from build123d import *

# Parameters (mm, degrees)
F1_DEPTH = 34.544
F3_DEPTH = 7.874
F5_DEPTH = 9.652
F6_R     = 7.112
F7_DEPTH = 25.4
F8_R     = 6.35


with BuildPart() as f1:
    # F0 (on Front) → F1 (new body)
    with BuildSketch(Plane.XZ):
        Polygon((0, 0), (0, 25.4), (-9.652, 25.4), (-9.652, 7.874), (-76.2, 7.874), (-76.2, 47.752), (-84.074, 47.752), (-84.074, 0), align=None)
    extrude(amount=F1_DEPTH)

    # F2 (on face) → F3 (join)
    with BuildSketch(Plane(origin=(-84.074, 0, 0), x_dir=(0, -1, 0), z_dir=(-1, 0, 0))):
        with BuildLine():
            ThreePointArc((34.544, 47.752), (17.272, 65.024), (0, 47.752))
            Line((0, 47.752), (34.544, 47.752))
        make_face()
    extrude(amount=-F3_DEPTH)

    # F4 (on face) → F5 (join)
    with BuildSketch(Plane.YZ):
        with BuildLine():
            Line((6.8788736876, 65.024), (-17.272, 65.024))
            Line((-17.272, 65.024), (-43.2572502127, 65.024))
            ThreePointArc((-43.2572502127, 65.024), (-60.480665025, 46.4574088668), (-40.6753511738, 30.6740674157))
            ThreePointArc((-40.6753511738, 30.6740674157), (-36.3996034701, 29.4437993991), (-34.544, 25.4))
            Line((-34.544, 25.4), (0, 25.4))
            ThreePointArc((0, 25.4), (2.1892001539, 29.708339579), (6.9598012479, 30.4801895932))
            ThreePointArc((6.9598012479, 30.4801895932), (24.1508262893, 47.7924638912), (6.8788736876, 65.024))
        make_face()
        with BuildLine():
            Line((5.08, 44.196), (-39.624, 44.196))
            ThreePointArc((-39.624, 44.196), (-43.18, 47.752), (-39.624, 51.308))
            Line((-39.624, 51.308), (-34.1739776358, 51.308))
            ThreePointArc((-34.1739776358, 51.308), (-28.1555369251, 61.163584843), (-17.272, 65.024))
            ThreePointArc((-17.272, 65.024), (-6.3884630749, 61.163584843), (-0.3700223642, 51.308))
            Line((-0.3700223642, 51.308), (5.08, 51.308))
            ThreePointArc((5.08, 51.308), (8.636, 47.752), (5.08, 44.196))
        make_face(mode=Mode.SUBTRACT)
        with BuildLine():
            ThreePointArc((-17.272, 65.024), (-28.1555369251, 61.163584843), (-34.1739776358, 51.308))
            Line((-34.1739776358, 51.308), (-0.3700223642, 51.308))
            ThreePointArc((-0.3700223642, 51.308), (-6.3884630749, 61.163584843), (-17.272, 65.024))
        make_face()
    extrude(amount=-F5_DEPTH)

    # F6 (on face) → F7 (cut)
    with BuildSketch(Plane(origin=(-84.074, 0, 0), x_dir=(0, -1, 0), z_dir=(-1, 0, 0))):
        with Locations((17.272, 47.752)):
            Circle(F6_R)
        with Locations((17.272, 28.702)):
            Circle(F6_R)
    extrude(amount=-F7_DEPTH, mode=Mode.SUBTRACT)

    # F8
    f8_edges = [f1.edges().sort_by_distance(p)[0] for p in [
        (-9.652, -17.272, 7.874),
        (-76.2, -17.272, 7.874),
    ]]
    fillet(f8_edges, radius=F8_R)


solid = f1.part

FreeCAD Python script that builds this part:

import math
import FreeCAD as App
import Part
import Sketcher
from FreeCAD import Vector
Q = App.Units.Quantity


def edges_at(feature, points):
    """Names of the edges that pass closest to the given points."""
    edges = feature.Shape.Edges
    near = lambda p: min(range(len(edges)), key=lambda i: edges[i].distToShape(Part.Vertex(*p))[0])
    return sorted({f"Edge{near(p) + 1}" for p in points})


def add_polygon(sketch, points):
    """Adds a closed chain of lines whose ends are joined by coincident constraints."""
    first, n = sketch.GeometryCount, len(points)
    for a, b in zip(points, points[1:] + points[:1]):
        sketch.addGeometry(Part.LineSegment(App.Vector(*a, 0), App.Vector(*b, 0)), False)
    for i in range(n):
        sketch.addConstraint(Sketcher.Constraint("Coincident", first + i, 2, first + (i + 1) % n, 1))

doc = App.newDocument("Part")
body = doc.addObject("PartDesign::Body", "Body")

# Sketch on XZ plane
sketch1 = body.newObject("Sketcher::SketchObject", "Sketch")
sketch1.AttachmentSupport = (doc.getObject("XZ_Plane"), [""])
sketch1.MapMode = "FlatFace"
add_polygon(sketch1, [(0, 0), (0, 25.4), (-9.652, 25.4), (-9.652, 7.874), (-76.2, 7.874), (-76.2, 47.752), (-84.074, 47.752), (-84.074, 0)])  # lines 0-7
sketch1.addConstraint([
    Sketcher.Constraint("Vertical", 0),
    Sketcher.Constraint("Horizontal", 1),
    Sketcher.Constraint("Vertical", 2),
    Sketcher.Constraint("Horizontal", 3),
    Sketcher.Constraint("Vertical", 4),
    Sketcher.Constraint("Horizontal", 5),
    Sketcher.Constraint("Vertical", 6),
    Sketcher.Constraint("Horizontal", 7),
    Sketcher.Constraint("Coincident", 7, 2, -1, 1),
    Sketcher.Constraint("DistanceY", 0, 1, 0, 2, Q("1 in")),
    Sketcher.Constraint("DistanceX", 3, 2, -1, 1, Q("3 in")),
    Sketcher.Constraint("DistanceX", 1, 2, 1, 1, Q("0.38 in")),
    Sketcher.Constraint("DistanceX", 5, 2, 5, 1, Q("0.31 in")),
    Sketcher.Constraint("DistanceY", 2, 2, 2, 1, Q("0.69 in")),
    Sketcher.Constraint("DistanceY", 4, 1, 4, 2, Q("1.57 in")),
])
pad1 = body.newObject("PartDesign::Pad", "Pad")
pad1.Profile = sketch1
pad1.Length = Q("1.36 in")

# Sketch on YZ plane
sketch2 = body.newObject("Sketcher::SketchObject", "Sketch001")
sketch2.AttachmentSupport = (doc.getObject("YZ_Plane"), [""])
sketch2.MapMode = "FlatFace"
sketch2.AttachmentOffset = App.Placement(Vector(0, 0, -3.31 * 25.4), App.Rotation())
sketch2.addGeometry([
    Part.ArcOfCircle(Part.Circle(Vector(-17.272, 47.752, 0), Vector(0, 0, 1), 17.272), math.radians(0), math.radians(180)),
    Part.LineSegment(Vector(0, 47.752, 0), Vector(-34.544, 47.752, 0)),
], False)
sketch2.addConstraint([
    Sketcher.Constraint("Coincident", 0, 1, 1, 1),
    Sketcher.Constraint("Coincident", 1, 2, 0, 2),
    Sketcher.Constraint("Horizontal", 1),
    Sketcher.Constraint("PointOnObject", 0, 1, -2),
    Sketcher.Constraint("Radius", 0, Q("0.68 in")),
    Sketcher.Constraint("DistanceY", -1, 1, 0, 3, Q("1.88 in")),
    Sketcher.Constraint("DistanceY", -1, 1, 0, 1, Q("1.88 in")),
])
pad2 = body.newObject("PartDesign::Pad", "Pad001")
pad2.Profile = sketch2
pad2.Length = Q("0.31 in")

# Sketch on YZ plane
sketch3 = body.newObject("Sketcher::SketchObject", "Sketch002")
sketch3.AttachmentSupport = (doc.getObject("YZ_Plane"), [""])
sketch3.MapMode = "FlatFace"
sketch3.addGeometry([
    Part.ArcOfCircle(Part.Circle(Vector(5.334, 25.4, 0), Vector(0, 0, 1), 5.334), math.radians(72.25389), math.radians(180)),  # 0
    Part.ArcOfCircle(Part.Circle(Vector(6.878874, 47.752, 0), Vector(0, 0, 1), 17.272), math.radians(-89.731541), math.radians(90)),  # 1
    Part.LineSegment(Vector(6.878874, 65.024, 0), Vector(-43.25725, 65.024, 0)),  # 2
    Part.ArcOfCircle(Part.Circle(Vector(-43.25725, 47.752, 0), Vector(0, 0, 1), 17.272), math.radians(90), math.radians(278.597063)),  # 3
    Part.ArcOfCircle(Part.Circle(Vector(-39.878, 25.4, 0), Vector(0, 0, 1), 5.334), math.radians(0), math.radians(98.597063)),  # 4
    Part.LineSegment(Vector(-34.544, 25.4, 0), Vector(0, 25.4, 0)),  # 5
    Part.LineSegment(Vector(-39.624, 51.308, 0), Vector(5.08, 51.308, 0)),  # 6
    Part.ArcOfCircle(Part.Circle(Vector(5.08, 47.752, 0), Vector(0, 0, 1), 3.556), math.radians(-90), math.radians(90)),  # 7
    Part.LineSegment(Vector(5.08, 44.196, 0), Vector(-39.624, 44.196, 0)),  # 8
    Part.ArcOfCircle(Part.Circle(Vector(-39.624, 47.752, 0), Vector(0, 0, 1), 3.556), math.radians(90), math.radians(270)),  # 9
], False)
sketch3.addConstraint([
    Sketcher.Constraint("Coincident", 0, 1, 1, 1),
    Sketcher.Constraint("Tangent", 1, 2, 2, 1),
    Sketcher.Constraint("Tangent", 2, 2, 3, 1),
    Sketcher.Constraint("Tangent", 3, 2, 4, 2),
    Sketcher.Constraint("Coincident", 4, 1, 5, 1),
    Sketcher.Constraint("Coincident", 5, 2, 0, 2),
    Sketcher.Constraint("Tangent", 6, 2, 7, 2),
    Sketcher.Constraint("Tangent", 7, 1, 8, 1),
    Sketcher.Constraint("Tangent", 8, 2, 9, 2),
    Sketcher.Constraint("Tangent", 9, 1, 6, 1),
    Sketcher.Constraint("Horizontal", 2),
    Sketcher.Constraint("Horizontal", 5),
    Sketcher.Constraint("Horizontal", 6),
    Sketcher.Constraint("Horizontal", 8),
    Sketcher.Constraint("Equal", 1, 3),
    Sketcher.Constraint("Equal", 0, 4),
    Sketcher.Constraint("PointOnObject", 5, 2, -2),
    Sketcher.Constraint("Horizontal", 0, 3, 4, 3),
    Sketcher.Constraint("Horizontal", 3, 3, 7, 3),
    Sketcher.Constraint("Horizontal", 0, 3, 4, 1),
    Sketcher.Constraint("Radius", 0, Q("0.21 in")),
    Sketcher.Constraint("Radius", 1, Q("0.68 in")),
    Sketcher.Constraint("Radius", 7, Q("0.14 in")),
    Sketcher.Constraint("DistanceY", -1, 1, 0, 3, Q("1 in")),
    Sketcher.Constraint("DistanceX", 5, 1, 5, 2, Q("1.36 in")),
    Sketcher.Constraint("DistanceX", 6, 1, 6, 2, Q("1.76 in")),
    Sketcher.Constraint("DistanceX", -1, 1, 7, 3, Q("0.2 in")),
    Sketcher.Constraint("DistanceY", -1, 1, 1, 3, Q("1.88 in")),
    Sketcher.Constraint("DistanceX", 0, 3, 0, 1, Q("1.625801 mm")),
])
pad3 = body.newObject("PartDesign::Pad", "Pad002")
pad3.Profile = sketch3
pad3.Length = Q("0.38 in")
pad3.Reversed = True

# Sketch on YZ plane
sketch4 = body.newObject("Sketcher::SketchObject", "Sketch003")
sketch4.AttachmentSupport = (doc.getObject("YZ_Plane"), [""])
sketch4.MapMode = "FlatFace"
sketch4.AttachmentOffset = App.Placement(Vector(0, 0, -3.31 * 25.4), App.Rotation())
sketch4.addGeometry([
    Part.Circle(Vector(-17.272, 47.752, 0), Vector(0, 0, 1), 7.112),
    Part.Circle(Vector(-17.272, 28.702, 0), Vector(0, 0, 1), 7.112),
], False)
sketch4.addConstraint([
    Sketcher.Constraint("Equal", 0, 1),
    Sketcher.Constraint("Vertical", 0, 3, 1, 3),
    Sketcher.Constraint("Diameter", 0, Q("0.56 in")),
    Sketcher.Constraint("DistanceX", 0, 3, -1, 1, Q("0.68 in")),
    Sketcher.Constraint("DistanceY", -1, 1, 0, 3, Q("1.88 in")),
    Sketcher.Constraint("DistanceY", -1, 1, 1, 3, Q("1.13 in")),
])
pocket1 = body.newObject("PartDesign::Pocket", "Pocket")
pocket1.Profile = sketch4
pocket1.Length = Q("1 in")
pocket1.Reversed = True
doc.recompute()

fillet = body.newObject("PartDesign::Fillet", "Fillet")
fillet.Base = (pocket1, edges_at(pocket1, [(-9.652, -17.272, 7.874), (-76.2, -17.272, 7.874)]))
fillet.Radius = Q("0.25 in")

doc.recompute()
